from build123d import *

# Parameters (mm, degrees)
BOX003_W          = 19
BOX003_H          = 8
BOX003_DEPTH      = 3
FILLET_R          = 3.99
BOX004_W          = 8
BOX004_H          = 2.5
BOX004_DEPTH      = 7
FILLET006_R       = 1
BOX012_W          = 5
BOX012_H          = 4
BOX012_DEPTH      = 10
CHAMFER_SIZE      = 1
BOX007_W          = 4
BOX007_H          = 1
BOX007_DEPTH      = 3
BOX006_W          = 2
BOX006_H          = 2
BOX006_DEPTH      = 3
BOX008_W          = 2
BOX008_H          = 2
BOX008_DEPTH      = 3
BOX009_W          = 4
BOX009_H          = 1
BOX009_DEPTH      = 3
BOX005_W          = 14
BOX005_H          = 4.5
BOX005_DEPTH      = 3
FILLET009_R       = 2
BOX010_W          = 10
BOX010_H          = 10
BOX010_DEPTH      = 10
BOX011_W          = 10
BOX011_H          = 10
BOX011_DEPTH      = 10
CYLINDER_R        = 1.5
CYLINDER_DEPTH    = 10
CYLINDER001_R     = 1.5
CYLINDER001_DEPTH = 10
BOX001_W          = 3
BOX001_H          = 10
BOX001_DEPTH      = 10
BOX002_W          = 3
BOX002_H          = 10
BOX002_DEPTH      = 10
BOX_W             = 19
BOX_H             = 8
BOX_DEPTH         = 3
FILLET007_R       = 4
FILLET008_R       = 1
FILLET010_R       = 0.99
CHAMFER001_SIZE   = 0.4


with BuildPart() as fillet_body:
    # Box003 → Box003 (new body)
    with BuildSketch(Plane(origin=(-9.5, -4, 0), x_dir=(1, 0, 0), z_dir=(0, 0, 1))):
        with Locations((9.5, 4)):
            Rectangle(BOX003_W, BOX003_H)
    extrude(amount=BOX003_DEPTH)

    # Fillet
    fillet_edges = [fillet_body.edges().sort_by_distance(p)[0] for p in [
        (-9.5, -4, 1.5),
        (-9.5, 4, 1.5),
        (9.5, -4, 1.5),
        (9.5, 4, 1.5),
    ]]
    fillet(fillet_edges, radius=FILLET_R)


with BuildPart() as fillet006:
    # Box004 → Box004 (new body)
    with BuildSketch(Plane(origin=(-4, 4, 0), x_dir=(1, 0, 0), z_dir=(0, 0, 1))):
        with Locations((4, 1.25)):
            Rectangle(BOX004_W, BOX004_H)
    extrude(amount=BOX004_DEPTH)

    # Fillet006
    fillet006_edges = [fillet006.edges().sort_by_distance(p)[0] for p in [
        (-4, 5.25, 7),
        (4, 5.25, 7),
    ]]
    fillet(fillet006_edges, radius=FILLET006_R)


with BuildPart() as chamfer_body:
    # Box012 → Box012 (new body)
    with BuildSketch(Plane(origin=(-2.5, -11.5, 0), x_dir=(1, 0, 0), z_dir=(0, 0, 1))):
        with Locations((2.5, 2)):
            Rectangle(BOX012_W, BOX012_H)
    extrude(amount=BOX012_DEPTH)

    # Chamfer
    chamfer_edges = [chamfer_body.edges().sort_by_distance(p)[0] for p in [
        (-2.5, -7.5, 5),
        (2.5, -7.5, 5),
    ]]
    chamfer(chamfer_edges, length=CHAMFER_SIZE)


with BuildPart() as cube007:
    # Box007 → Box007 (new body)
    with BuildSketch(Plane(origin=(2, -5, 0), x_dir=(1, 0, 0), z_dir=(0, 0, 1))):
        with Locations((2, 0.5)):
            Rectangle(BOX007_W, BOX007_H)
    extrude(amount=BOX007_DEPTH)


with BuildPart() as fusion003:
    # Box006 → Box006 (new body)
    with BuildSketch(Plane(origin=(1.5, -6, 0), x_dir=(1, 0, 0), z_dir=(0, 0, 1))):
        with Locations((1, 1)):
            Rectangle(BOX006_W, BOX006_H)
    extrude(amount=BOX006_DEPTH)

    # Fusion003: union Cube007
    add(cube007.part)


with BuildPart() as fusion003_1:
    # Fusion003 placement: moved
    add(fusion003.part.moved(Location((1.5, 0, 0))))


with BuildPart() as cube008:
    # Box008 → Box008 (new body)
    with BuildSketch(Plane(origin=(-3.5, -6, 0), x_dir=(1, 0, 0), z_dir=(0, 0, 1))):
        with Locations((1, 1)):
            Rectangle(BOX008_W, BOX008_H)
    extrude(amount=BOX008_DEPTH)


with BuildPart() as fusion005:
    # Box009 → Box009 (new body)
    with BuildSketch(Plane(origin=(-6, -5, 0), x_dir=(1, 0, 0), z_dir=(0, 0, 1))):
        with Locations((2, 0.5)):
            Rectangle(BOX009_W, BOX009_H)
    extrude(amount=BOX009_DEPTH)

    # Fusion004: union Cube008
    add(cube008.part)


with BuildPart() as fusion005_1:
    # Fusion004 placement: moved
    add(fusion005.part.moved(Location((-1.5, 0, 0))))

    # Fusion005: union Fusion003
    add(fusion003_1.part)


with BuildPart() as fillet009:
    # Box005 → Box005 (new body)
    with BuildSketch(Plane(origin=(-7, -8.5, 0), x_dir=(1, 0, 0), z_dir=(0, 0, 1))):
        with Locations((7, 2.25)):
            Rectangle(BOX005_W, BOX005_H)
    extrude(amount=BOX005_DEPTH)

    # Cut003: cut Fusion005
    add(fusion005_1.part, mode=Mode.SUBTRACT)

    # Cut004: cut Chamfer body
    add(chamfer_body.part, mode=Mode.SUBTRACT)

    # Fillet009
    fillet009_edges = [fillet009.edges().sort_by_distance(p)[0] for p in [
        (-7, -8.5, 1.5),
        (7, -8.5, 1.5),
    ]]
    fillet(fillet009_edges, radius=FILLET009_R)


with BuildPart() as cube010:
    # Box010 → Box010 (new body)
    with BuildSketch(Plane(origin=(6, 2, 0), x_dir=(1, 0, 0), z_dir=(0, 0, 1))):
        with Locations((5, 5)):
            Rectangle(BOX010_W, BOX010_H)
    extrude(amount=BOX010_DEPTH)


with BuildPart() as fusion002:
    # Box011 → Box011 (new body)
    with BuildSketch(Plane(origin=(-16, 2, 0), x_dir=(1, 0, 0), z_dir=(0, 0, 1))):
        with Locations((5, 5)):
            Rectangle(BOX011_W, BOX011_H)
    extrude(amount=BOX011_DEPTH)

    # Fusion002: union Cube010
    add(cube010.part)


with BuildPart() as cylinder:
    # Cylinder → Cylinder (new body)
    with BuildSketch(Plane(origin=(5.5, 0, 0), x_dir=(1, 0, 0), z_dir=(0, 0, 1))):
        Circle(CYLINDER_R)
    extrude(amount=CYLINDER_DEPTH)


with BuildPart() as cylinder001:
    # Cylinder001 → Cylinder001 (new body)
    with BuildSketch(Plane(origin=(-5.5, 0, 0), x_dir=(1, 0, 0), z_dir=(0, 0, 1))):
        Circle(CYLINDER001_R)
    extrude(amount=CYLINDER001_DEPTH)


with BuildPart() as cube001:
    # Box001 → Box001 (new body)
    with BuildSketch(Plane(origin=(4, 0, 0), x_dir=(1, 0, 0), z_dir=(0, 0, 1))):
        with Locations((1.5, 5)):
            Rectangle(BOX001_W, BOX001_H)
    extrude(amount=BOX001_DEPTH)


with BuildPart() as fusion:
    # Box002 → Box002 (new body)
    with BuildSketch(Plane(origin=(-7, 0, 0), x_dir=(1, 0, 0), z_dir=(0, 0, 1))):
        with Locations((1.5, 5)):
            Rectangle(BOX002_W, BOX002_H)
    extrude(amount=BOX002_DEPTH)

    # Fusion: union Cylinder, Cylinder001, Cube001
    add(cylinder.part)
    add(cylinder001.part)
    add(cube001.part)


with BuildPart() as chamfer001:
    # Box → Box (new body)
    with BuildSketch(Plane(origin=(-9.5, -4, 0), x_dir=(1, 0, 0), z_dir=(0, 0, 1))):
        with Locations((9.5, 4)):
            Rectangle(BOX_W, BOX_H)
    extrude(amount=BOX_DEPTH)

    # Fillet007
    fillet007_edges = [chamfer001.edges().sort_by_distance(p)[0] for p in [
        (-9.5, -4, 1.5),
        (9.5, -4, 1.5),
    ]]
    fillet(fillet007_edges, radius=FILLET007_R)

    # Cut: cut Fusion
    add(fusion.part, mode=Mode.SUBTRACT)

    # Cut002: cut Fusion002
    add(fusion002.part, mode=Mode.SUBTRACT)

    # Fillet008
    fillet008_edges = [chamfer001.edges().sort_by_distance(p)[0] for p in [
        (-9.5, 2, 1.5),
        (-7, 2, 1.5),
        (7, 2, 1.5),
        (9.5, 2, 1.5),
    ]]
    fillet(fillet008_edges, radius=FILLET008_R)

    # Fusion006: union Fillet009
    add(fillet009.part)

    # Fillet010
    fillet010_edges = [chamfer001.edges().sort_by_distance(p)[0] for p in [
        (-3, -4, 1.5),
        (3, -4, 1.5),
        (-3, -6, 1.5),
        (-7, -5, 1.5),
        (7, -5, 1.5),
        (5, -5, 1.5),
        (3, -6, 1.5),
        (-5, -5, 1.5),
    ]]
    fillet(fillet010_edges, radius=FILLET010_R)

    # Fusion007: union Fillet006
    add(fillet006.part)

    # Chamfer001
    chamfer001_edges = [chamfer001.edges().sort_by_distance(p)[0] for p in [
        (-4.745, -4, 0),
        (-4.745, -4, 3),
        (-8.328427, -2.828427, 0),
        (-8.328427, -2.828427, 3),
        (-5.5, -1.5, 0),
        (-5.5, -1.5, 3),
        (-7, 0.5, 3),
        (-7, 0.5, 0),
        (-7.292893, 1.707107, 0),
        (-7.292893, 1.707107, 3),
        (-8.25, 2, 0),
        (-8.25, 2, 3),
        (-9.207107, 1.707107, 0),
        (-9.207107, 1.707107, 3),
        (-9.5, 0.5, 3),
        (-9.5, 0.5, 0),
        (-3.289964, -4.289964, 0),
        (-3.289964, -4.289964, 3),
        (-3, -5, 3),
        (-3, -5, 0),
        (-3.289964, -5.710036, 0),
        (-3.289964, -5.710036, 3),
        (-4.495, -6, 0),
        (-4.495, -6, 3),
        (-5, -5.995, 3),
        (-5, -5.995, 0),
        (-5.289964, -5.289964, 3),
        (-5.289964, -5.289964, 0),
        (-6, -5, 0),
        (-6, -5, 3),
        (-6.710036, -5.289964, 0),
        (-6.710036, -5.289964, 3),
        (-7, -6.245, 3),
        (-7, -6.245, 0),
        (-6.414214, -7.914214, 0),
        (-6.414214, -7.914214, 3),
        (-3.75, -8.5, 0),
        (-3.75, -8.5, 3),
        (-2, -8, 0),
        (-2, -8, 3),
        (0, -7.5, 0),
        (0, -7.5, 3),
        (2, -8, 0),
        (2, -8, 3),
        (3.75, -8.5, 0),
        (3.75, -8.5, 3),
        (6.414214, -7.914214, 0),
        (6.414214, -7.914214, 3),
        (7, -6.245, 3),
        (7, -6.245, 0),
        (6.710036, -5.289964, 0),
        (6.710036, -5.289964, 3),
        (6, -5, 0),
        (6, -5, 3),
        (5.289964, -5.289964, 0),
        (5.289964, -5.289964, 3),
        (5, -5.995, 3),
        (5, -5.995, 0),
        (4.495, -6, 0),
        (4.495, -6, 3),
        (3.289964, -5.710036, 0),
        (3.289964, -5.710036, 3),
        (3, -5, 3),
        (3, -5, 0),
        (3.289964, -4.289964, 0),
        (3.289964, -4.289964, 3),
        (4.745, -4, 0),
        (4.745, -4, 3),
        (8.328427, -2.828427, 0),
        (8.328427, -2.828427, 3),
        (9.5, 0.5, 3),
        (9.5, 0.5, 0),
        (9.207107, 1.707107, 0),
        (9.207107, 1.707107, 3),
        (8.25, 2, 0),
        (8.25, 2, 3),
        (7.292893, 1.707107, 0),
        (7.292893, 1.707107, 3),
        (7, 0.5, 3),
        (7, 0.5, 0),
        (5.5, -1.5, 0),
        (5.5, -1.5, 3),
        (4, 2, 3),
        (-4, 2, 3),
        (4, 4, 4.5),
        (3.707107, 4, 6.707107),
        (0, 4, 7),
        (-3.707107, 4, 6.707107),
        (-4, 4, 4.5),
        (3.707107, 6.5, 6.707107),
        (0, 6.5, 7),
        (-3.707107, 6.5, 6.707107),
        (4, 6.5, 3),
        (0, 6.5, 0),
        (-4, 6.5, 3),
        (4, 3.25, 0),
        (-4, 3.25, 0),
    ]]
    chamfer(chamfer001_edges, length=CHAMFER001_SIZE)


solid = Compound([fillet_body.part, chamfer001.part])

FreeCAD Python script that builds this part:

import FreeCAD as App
import Part
import Sketcher

V = App.Vector


def edges_at(feature, points):
    """Names of the edges that pass closest to the given points."""
    edges = feature.Shape.Edges
    near = lambda p: min(range(len(edges)), key=lambda i: edges[i].distToShape(Part.Vertex(*p))[0])
    return sorted({f"Edge{near(p) + 1}" for p in points})

doc = App.newDocument("Part")
body = doc.addObject("PartDesign::Body", "Body")

sketch1 = body.newObject("Sketcher::SketchObject", "Sketch")
sketch1.AttachmentSupport = (doc.getObject("XY_Plane"), [""])
sketch1.MapMode = "FlatFace"
sketch1.addGeometry([
    Part.LineSegment(V(-10, 4, 0), V(-10, -4, 0)),
    Part.LineSegment(V(-10, -4, 0), V(10, -4, 0)),
    Part.LineSegment(V(10, -4, 0), V(10, 4, 0)),
    Part.LineSegment(V(10, 4, 0), V(-10, 4, 0)),
], False)
sketch1.addConstraint([
    Sketcher.Constraint("Coincident", 0, 2, 1, 1),
    Sketcher.Constraint("Coincident", 1, 2, 2, 1),
    Sketcher.Constraint("Coincident", 2, 2, 3, 1),
    Sketcher.Constraint("Coincident", 3, 2, 0, 1),
    Sketcher.Constraint("Vertical", 0),
    Sketcher.Constraint("Horizontal", 1),
    Sketcher.Constraint("Vertical", 2),
    Sketcher.Constraint("Horizontal", 3),
    Sketcher.Constraint("Symmetric", 0, 2, 2, 2, -1, 1),
    Sketcher.Constraint("DistanceX", 1, 1, 1, 2, 19.0),
    Sketcher.Constraint("DistanceY", 0, 2, 0, 1, 8.0),
])
pad1 = body.newObject("PartDesign::Pad", "Pad")
pad1.Profile = sketch1
pad1.Length = 3
doc.recompute()

fillet = body.newObject("PartDesign::Fillet", "Fillet")
fillet.Base = (pad1, edges_at(pad1, [
    (-9.5, -4, 1.5),
    (-9.5, 4, 1.5),
    (9.5, -4, 1.5),
    (9.5, 4, 1.5),
]))
fillet.Radius = 3.99
body2 = doc.addObject("PartDesign::Body", "Body001")

sketch2 = body2.newObject("Sketcher::SketchObject", "Sketch001")
sketch2.AttachmentSupport = (doc.getObject("XY_Plane001"), [""])
sketch2.MapMode = "FlatFace"
sketch2.addGeometry([
    Part.LineSegment(V(-4, 6.5, 0), V(-4, 4, 0)),
    Part.LineSegment(V(-4, 4, 0), V(4, 4, 0)),
    Part.LineSegment(V(4, 4, 0), V(4, 6.5, 0)),
    Part.LineSegment(V(4, 6.5, 0), V(-4, 6.5, 0)),
], False)
sketch2.addConstraint([
    Sketcher.Constraint("Coincident", 0, 2, 1, 1),
    Sketcher.Constraint("Coincident", 1, 2, 2, 1),
    Sketcher.Constraint("Coincident", 2, 2, 3, 1),
    Sketcher.Constraint("Coincident", 3, 2, 0, 1),
    Sketcher.Constraint("Vertical", 0),
    Sketcher.Constraint("Horizontal", 1),
    Sketcher.Constraint("Vertical", 2),
    Sketcher.Constraint("Horizontal", 3),
    Sketcher.Constraint("DistanceX", 1, 1, 1, 2, 8.0),
    Sketcher.Constraint("DistanceY", 0, 2, 0, 1, 2.5),
    Sketcher.Constraint("DistanceX", 0, 2, -1, 1, 4.0),
    Sketcher.Constraint("DistanceY", -1, 1, 0, 2, 4.0),
])
pad2 = body2.newObject("PartDesign::Pad", "Pad001")
pad2.Profile = sketch2
pad2.Length = 7
doc.recompute()

fillet2 = body2.newObject("PartDesign::Fillet", "Fillet001")
fillet2.Base = (pad2, edges_at(pad2, [(-4, 5.25, 7), (4, 5.25, 7)]))
fillet2.Radius = 1
body3 = doc.addObject("PartDesign::Body", "Body002")

sketch3 = body3.newObject("Sketcher::SketchObject", "Sketch002")
sketch3.AttachmentSupport = (doc.getObject("XY_Plane002"), [""])
sketch3.MapMode = "FlatFace"
sketch3.addGeometry([
    Part.LineSegment(V(-2.5, -7.5, 0), V(-2.5, -11.5, 0)),
    Part.LineSegment(V(-2.5, -11.5, 0), V(2.5, -11.5, 0)),
    Part.LineSegment(V(2.5, -11.5, 0), V(2.5, -7.5, 0)),
    Part.LineSegment(V(2.5, -7.5, 0), V(-2.5, -7.5, 0)),
], False)
sketch3.addConstraint([
    Sketcher.Constraint("Coincident", 0, 2, 1, 1),
    Sketcher.Constraint("Coincident", 1, 2, 2, 1),
    Sketcher.Constraint("Coincident", 2, 2, 3, 1),
    Sketcher.Constraint("Coincident", 3, 2, 0, 1),
    Sketcher.Constraint("Vertical", 0),
    Sketcher.Constraint("Horizontal", 1),
    Sketcher.Constraint("Vertical", 2),
    Sketcher.Constraint("Horizontal", 3),
    Sketcher.Constraint("DistanceX", 1, 1, 1, 2, 5.0),
    Sketcher.Constraint("DistanceY", 0, 2, 0, 1, 4.0),
    Sketcher.Constraint("DistanceX", 0, 2, -1, 1, 2.5),
    Sketcher.Constraint("DistanceY", 0, 2, -1, 1, 11.5),
])
pad3 = body3.newObject("PartDesign::Pad", "Pad002")
pad3.Profile = sketch3
pad3.Length = 10
doc.recompute()

chamfer = body3.newObject("PartDesign::Chamfer", "Chamfer")
chamfer.Base = (pad3, edges_at(pad3, [(-2.5, -7.5, 5), (2.5, -7.5, 5)]))
chamfer.Size = 1
body4 = doc.addObject("PartDesign::Body", "Body003")

sketch4 = body4.newObject("Sketcher::SketchObject", "Sketch003")
sketch4.AttachmentSupport = (doc.getObject("XY_Plane003"), [""])
sketch4.MapMode = "FlatFace"
sketch4.addGeometry([
    Part.LineSegment(V(2, -4, 0), V(2, -5, 0)),
    Part.LineSegment(V(2, -5, 0), V(6, -5, 0)),
    Part.LineSegment(V(6, -5, 0), V(6, -4, 0)),
    Part.LineSegment(V(6, -4, 0), V(2, -4, 0)),
], False)
sketch4.addConstraint([
    Sketcher.Constraint("Coincident", 0, 2, 1, 1),
    Sketcher.Constraint("Coincident", 1, 2, 2, 1),
    Sketcher.Constraint("Coincident", 2, 2, 3, 1),
    Sketcher.Constraint("Coincident", 3, 2, 0, 1),
    Sketcher.Constraint("Vertical", 0),
    Sketcher.Constraint("Horizontal", 1),
    Sketcher.Constraint("Vertical", 2),
    Sketcher.Constraint("Horizontal", 3),
    Sketcher.Constraint("DistanceX", 1, 1, 1, 2, 4.0),
    Sketcher.Constraint("DistanceY", 0, 2, 0, 1, 1.0),
    Sketcher.Constraint("DistanceX", -1, 1, 0, 2, 2.0),
    Sketcher.Constraint("DistanceY", 0, 2, -1, 1, 5.0),
])
pad4 = body4.newObject("PartDesign::Pad", "Pad003")
pad4.Profile = sketch4
pad4.Length = 3
body5 = doc.addObject("PartDesign::Body", "Body004")

sketch5 = body5.newObject("Sketcher::SketchObject", "Sketch004")
sketch5.AttachmentSupport = (doc.getObject("XY_Plane004"), [""])
sketch5.MapMode = "FlatFace"
sketch5.addGeometry([
    Part.LineSegment(V(1.5, -4, 0), V(1.5, -6, 0)),
    Part.LineSegment(V(1.5, -6, 0), V(3.5, -6, 0)),
    Part.LineSegment(V(3.5, -6, 0), V(3.5, -4, 0)),
    Part.LineSegment(V(3.5, -4, 0), V(1.5, -4, 0)),
], False)
sketch5.addConstraint([
    Sketcher.Constraint("Coincident", 0, 2, 1, 1),
    Sketcher.Constraint("Coincident", 1, 2, 2, 1),
    Sketcher.Constraint("Coincident", 2, 2, 3, 1),
    Sketcher.Constraint("Coincident", 3, 2, 0, 1),
    Sketcher.Constraint("Vertical", 0),
    Sketcher.Constraint("Horizontal", 1),
    Sketcher.Constraint("Vertical", 2),
    Sketcher.Constraint("Horizontal", 3),
    Sketcher.Constraint("Equal", 3, 0),
    Sketcher.Constraint("DistanceX", 1, 1, 1, 2, 2.0),
    Sketcher.Constraint("DistanceY", 0, 2, -1, 1, 6.0),
    Sketcher.Constraint("DistanceX", -1, 1, 0, 2, 1.5),
])
pad5 = body5.newObject("PartDesign::Pad", "Pad004")
pad5.Profile = sketch5
pad5.Length = 3
doc.recompute()

boolean = body5.newObject("PartDesign::Boolean", "Boolean")
boolean.Type = "Fuse"
boolean.addObjects([body4])
body6 = doc.addObject("PartDesign::Body", "Body005")
doc.recompute()

body5.Placement = App.Placement(V(1.5, 0, 0), App.Rotation(V(0, 0, 1), 0))
boolean2 = body6.newObject("PartDesign::Boolean", "Boolean001")
boolean2.Type = "Fuse"
boolean2.addObjects([body5])
body7 = doc.addObject("PartDesign::Body", "Body006")

sketch6 = body7.newObject("Sketcher::SketchObject", "Sketch005")
sketch6.AttachmentSupport = (doc.getObject("XY_Plane006"), [""])
sketch6.MapMode = "FlatFace"
sketch6.addGeometry([
    Part.LineSegment(V(-3.5, -4, 0), V(-3.5, -6, 0)),
    Part.LineSegment(V(-3.5, -6, 0), V(-1.5, -6, 0)),
    Part.LineSegment(V(-1.5, -6, 0), V(-1.5, -4, 0)),
    Part.LineSegment(V(-1.5, -4, 0), V(-3.5, -4, 0)),
], False)
sketch6.addConstraint([
    Sketcher.Constraint("Coincident", 0, 2, 1, 1),
    Sketcher.Constraint("Coincident", 1, 2, 2, 1),
    Sketcher.Constraint("Coincident", 2, 2, 3, 1),
    Sketcher.Constraint("Coincident", 3, 2, 0, 1),
    Sketcher.Constraint("Vertical", 0),
    Sketcher.Constraint("Horizontal", 1),
    Sketcher.Constraint("Vertical", 2),
    Sketcher.Constraint("Horizontal", 3),
    Sketcher.Constraint("Equal", 3, 0),
    Sketcher.Constraint("DistanceX", 1, 1, 1, 2, 2.0),
    Sketcher.Constraint("DistanceY", 0, 2, -1, 1, 6.0),
    Sketcher.Constraint("DistanceX", 0, 2, -1, 1, 3.5),
])
pad6 = body7.newObject("PartDesign::Pad", "Pad005")
pad6.Profile = sketch6
pad6.Length = 3
body8 = doc.addObject("PartDesign::Body", "Body007")

sketch7 = body8.newObject("Sketcher::SketchObject", "Sketch006")
sketch7.AttachmentSupport = (doc.getObject("XY_Plane007"), [""])
sketch7.MapMode = "FlatFace"
sketch7.addGeometry([
    Part.LineSegment(V(-6, -4, 0), V(-6, -5, 0)),
    Part.LineSegment(V(-6, -5, 0), V(-2, -5, 0)),
    Part.LineSegment(V(-2, -5, 0), V(-2, -4, 0)),
    Part.LineSegment(V(-2, -4, 0), V(-6, -4, 0)),
], False)
sketch7.addConstraint([
    Sketcher.Constraint("Coincident", 0, 2, 1, 1),
    Sketcher.Constraint("Coincident", 1, 2, 2, 1),
    Sketcher.Constraint("Coincident", 2, 2, 3, 1),
    Sketcher.Constraint("Coincident", 3, 2, 0, 1),
    Sketcher.Constraint("Vertical", 0),
    Sketcher.Constraint("Horizontal", 1),
    Sketcher.Constraint("Vertical", 2),
    Sketcher.Constraint("Horizontal", 3),
    Sketcher.Constraint("DistanceX", 1, 1, 1, 2, 4.0),
    Sketcher.Constraint("DistanceY", 0, 2, 0, 1, 1.0),
    Sketcher.Constraint("DistanceX", 0, 2, -1, 1, 6.0),
    Sketcher.Constraint("DistanceY", 0, 2, -1, 1, 5.0),
])
pad7 = body8.newObject("PartDesign::Pad", "Pad006")
pad7.Profile = sketch7
pad7.Length = 3
doc.recompute()

boolean3 = body8.newObject("PartDesign::Boolean", "Boolean002")
boolean3.Type = "Fuse"
boolean3.addObjects([body7])
body9 = doc.addObject("PartDesign::Body", "Body008")
body9.AllowCompound = True
doc.recompute()

body8.Placement = App.Placement(V(-1.5, 0, 0), App.Rotation(V(0, 0, 1), 0))
boolean4 = body9.newObject("PartDesign::Boolean", "Boolean003")
boolean4.Type = "Fuse"
boolean4.addObjects([body8])
doc.recompute()

boolean5 = body9.newObject("PartDesign::Boolean", "Boolean004")
boolean5.Type = "Fuse"
boolean5.addObjects([body6])
body10 = doc.addObject("PartDesign::Body", "Body009")

sketch8 = body10.newObject("Sketcher::SketchObject", "Sketch007")
sketch8.AttachmentSupport = (doc.getObject("XY_Plane009"), [""])
sketch8.MapMode = "FlatFace"
sketch8.addGeometry([
    Part.LineSegment(V(-7, -4, 0), V(-7, -8.5, 0)),
    Part.LineSegment(V(-7, -8.5, 0), V(7, -8.5, 0)),
    Part.LineSegment(V(7, -8.5, 0), V(7, -4, 0)),
    Part.LineSegment(V(7, -4, 0), V(-7, -4, 0)),
], False)
sketch8.addConstraint([
    Sketcher.Constraint("Coincident", 0, 2, 1, 1),
    Sketcher.Constraint("Coincident", 1, 2, 2, 1),
    Sketcher.Constraint("Coincident", 2, 2, 3, 1),
    Sketcher.Constraint("Coincident", 3, 2, 0, 1),
    Sketcher.Constraint("Vertical", 0),
    Sketcher.Constraint("Horizontal", 1),
    Sketcher.Constraint("Vertical", 2),
    Sketcher.Constraint("Horizontal", 3),
    Sketcher.Constraint("DistanceX", 1, 1, 1, 2, 14.0),
    Sketcher.Constraint("DistanceY", 0, 2, 0, 1, 4.5),
    Sketcher.Constraint("DistanceX", 0, 2, -1, 1, 7.0),
    Sketcher.Constraint("DistanceY", 2, 2, -1, 1, 4.0),
])
pad8 = body10.newObject("PartDesign::Pad", "Pad007")
pad8.Profile = sketch8
pad8.Length = 3
doc.recompute()

boolean6 = body10.newObject("PartDesign::Boolean", "Boolean005")
boolean6.Type = "Cut"
boolean6.addObjects([body9])
doc.recompute()

boolean7 = body10.newObject("PartDesign::Boolean", "Boolean006")
boolean7.Type = "Cut"
boolean7.addObjects([body3])
doc.recompute()

fillet3 = body10.newObject("PartDesign::Fillet", "Fillet002")
fillet3.Base = (boolean7, edges_at(boolean7, [(-7, -8.5, 1.5), (7, -8.5, 1.5)]))
fillet3.Radius = 2
body11 = doc.addObject("PartDesign::Body", "Body010")

sketch9 = body11.newObject("Sketcher::SketchObject", "Sketch008")
sketch9.AttachmentSupport = (doc.getObject("XY_Plane010"), [""])
sketch9.MapMode = "FlatFace"
sketch9.addGeometry([
    Part.LineSegment(V(6, 12, 0), V(6, 2, 0)),
    Part.LineSegment(V(6, 2, 0), V(16, 2, 0)),
    Part.LineSegment(V(16, 2, 0), V(16, 12, 0)),
    Part.LineSegment(V(16, 12, 0), V(6, 12, 0)),
], False)
sketch9.addConstraint([
    Sketcher.Constraint("Coincident", 0, 2, 1, 1),
    Sketcher.Constraint("Coincident", 1, 2, 2, 1),
    Sketcher.Constraint("Coincident", 2, 2, 3, 1),
    Sketcher.Constraint("Coincident", 3, 2, 0, 1),
    Sketcher.Constraint("Vertical", 0),
    Sketcher.Constraint("Horizontal", 1),
    Sketcher.Constraint("Vertical", 2),
    Sketcher.Constraint("Horizontal", 3),
    Sketcher.Constraint("Equal", 3, 0),
    Sketcher.Constraint("DistanceX", 1, 1, 1, 2, 10.0),
    Sketcher.Constraint("DistanceX", -1, 1, 0, 2, 6.0),
    Sketcher.Constraint("DistanceY", -1, 1, 0, 2, 2.0),
])
pad9 = body11.newObject("PartDesign::Pad", "Pad008")
pad9.Profile = sketch9
pad9.Length = 10
body12 = doc.addObject("PartDesign::Body", "Body011")
body12.AllowCompound = True

sketch10 = body12.newObject("Sketcher::SketchObject", "Sketch009")
sketch10.AttachmentSupport = (doc.getObject("XY_Plane011"), [""])
sketch10.MapMode = "FlatFace"
sketch10.addGeometry([
    Part.LineSegment(V(-16, 12, 0), V(-16, 2, 0)),
    Part.LineSegment(V(-16, 2, 0), V(-6, 2, 0)),
    Part.LineSegment(V(-6, 2, 0), V(-6, 12, 0)),
    Part.LineSegment(V(-6, 12, 0), V(-16, 12, 0)),
], False)
sketch10.addConstraint([
    Sketcher.Constraint("Coincident", 0, 2, 1, 1),
    Sketcher.Constraint("Coincident", 1, 2, 2, 1),
    Sketcher.Constraint("Coincident", 2, 2, 3, 1),
    Sketcher.Constraint("Coincident", 3, 2, 0, 1),
    Sketcher.Constraint("Vertical", 0),
    Sketcher.Constraint("Horizontal", 1),
    Sketcher.Constraint("Vertical", 2),
    Sketcher.Constraint("Horizontal", 3),
    Sketcher.Constraint("Equal", 3, 0),
    Sketcher.Constraint("DistanceX", 1, 1, 1, 2, 10.0),
    Sketcher.Constraint("DistanceX", 0, 2, -1, 1, 16.0),
    Sketcher.Constraint("DistanceY", -1, 1, 0, 2, 2.0),
])
pad10 = body12.newObject("PartDesign::Pad", "Pad009")
pad10.Profile = sketch10
pad10.Length = 10
doc.recompute()

boolean8 = body12.newObject("PartDesign::Boolean", "Boolean007")
boolean8.Type = "Fuse"
boolean8.addObjects([body11])
body13 = doc.addObject("PartDesign::Body", "Body012")

sketch11 = body13.newObject("Sketcher::SketchObject", "Sketch010")
sketch11.AttachmentSupport = (doc.getObject("XY_Plane012"), [""])
sketch11.MapMode = "FlatFace"
sketch11.addGeometry(Part.Circle(V(5.5, 0, 0), V(0, 0, 1), 1.5), False)
sketch11.addConstraint([
    Sketcher.Constraint("PointOnObject", 0, 3, -1),
    Sketcher.Constraint("Diameter", 0, 3.0),
    Sketcher.Constraint("DistanceX", -1, 1, 0, 3, 5.5),
])
pad11 = body13.newObject("PartDesign::Pad", "Pad010")
pad11.Profile = sketch11
pad11.Length = 10
body14 = doc.addObject("PartDesign::Body", "Body013")

sketch12 = body14.newObject("Sketcher::SketchObject", "Sketch011")
sketch12.AttachmentSupport = (doc.getObject("XY_Plane013"), [""])
sketch12.MapMode = "FlatFace"
sketch12.addGeometry(Part.Circle(V(-5.5, 0, 0), V(0, 0, 1), 1.5), False)
sketch12.addConstraint([
    Sketcher.Constraint("PointOnObject", 0, 3, -1),
    Sketcher.Constraint("Diameter", 0, 3.0),
    Sketcher.Constraint("DistanceX", 0, 3, -1, 1, 5.5),
])
pad12 = body14.newObject("PartDesign::Pad", "Pad011")
pad12.Profile = sketch12
pad12.Length = 10
body15 = doc.addObject("PartDesign::Body", "Body014")

sketch13 = body15.newObject("Sketcher::SketchObject", "Sketch012")
sketch13.AttachmentSupport = (doc.getObject("XY_Plane014"), [""])
sketch13.MapMode = "FlatFace"
sketch13.addGeometry([
    Part.LineSegment(V(4, 10, 0), V(4, 0, 0)),
    Part.LineSegment(V(4, 0, 0), V(7, 0, 0)),
    Part.LineSegment(V(7, 0, 0), V(7, 10, 0)),
    Part.LineSegment(V(7, 10, 0), V(4, 10, 0)),
], False)
sketch13.addConstraint([
    Sketcher.Constraint("Coincident", 0, 2, 1, 1),
    Sketcher.Constraint("Coincident", 1, 2, 2, 1),
    Sketcher.Constraint("Coincident", 2, 2, 3, 1),
    Sketcher.Constraint("Coincident", 3, 2, 0, 1),
    Sketcher.Constraint("Vertical", 0),
    Sketcher.Constraint("Horizontal", 1),
    Sketcher.Constraint("Vertical", 2),
    Sketcher.Constraint("Horizontal", 3),
    Sketcher.Constraint("PointOnObject", 0, 2, -1),
    Sketcher.Constraint("DistanceX", 1, 1, 1, 2, 3.0),
    Sketcher.Constraint("DistanceY", 0, 2, 0, 1, 10.0),
    Sketcher.Constraint("DistanceX", -1, 1, 0, 2, 4.0),
])
pad13 = body15.newObject("PartDesign::Pad", "Pad012")
pad13.Profile = sketch13
pad13.Length = 10
body16 = doc.addObject("PartDesign::Body", "Body015")
body16.AllowCompound = True

sketch14 = body16.newObject("Sketcher::SketchObject", "Sketch013")
sketch14.AttachmentSupport = (doc.getObject("XY_Plane015"), [""])
sketch14.MapMode = "FlatFace"
sketch14.addGeometry([
    Part.LineSegment(V(-7, 10, 0), V(-7, 0, 0)),
    Part.LineSegment(V(-7, 0, 0), V(-4, 0, 0)),
    Part.LineSegment(V(-4, 0, 0), V(-4, 10, 0)),
    Part.LineSegment(V(-4, 10, 0), V(-7, 10, 0)),
], False)
sketch14.addConstraint([
    Sketcher.Constraint("Coincident", 0, 2, 1, 1),
    Sketcher.Constraint("Coincident", 1, 2, 2, 1),
    Sketcher.Constraint("Coincident", 2, 2, 3, 1),
    Sketcher.Constraint("Coincident", 3, 2, 0, 1),
    Sketcher.Constraint("Vertical", 0),
    Sketcher.Constraint("Horizontal", 1),
    Sketcher.Constraint("Vertical", 2),
    Sketcher.Constraint("Horizontal", 3),
    Sketcher.Constraint("PointOnObject", 0, 2, -1),
    Sketcher.Constraint("DistanceX", 1, 1, 1, 2, 3.0),
    Sketcher.Constraint("DistanceY", 0, 2, 0, 1, 10.0),
    Sketcher.Constraint("DistanceX", 0, 2, -1, 1, 7.0),
])
pad14 = body16.newObject("PartDesign::Pad", "Pad013")
pad14.Profile = sketch14
pad14.Length = 10
doc.recompute()

boolean9 = body16.newObject("PartDesign::Boolean", "Boolean008")
boolean9.Type = "Fuse"
boolean9.addObjects([body13])
doc.recompute()

boolean10 = body16.newObject("PartDesign::Boolean", "Boolean009")
boolean10.Type = "Fuse"
boolean10.addObjects([body14])
doc.recompute()

boolean11 = body16.newObject("PartDesign::Boolean", "Boolean010")
boolean11.Type = "Fuse"
boolean11.addObjects([body15])
body17 = doc.addObject("PartDesign::Body", "Body016")

sketch15 = body17.newObject("Sketcher::SketchObject", "Sketch014")
sketch15.AttachmentSupport = (doc.getObject("XY_Plane016"), [""])
sketch15.MapMode = "FlatFace"
sketch15.addGeometry([
    Part.LineSegment(V(-10, 4, 0), V(-10, -4, 0)),
    Part.LineSegment(V(-10, -4, 0), V(10, -4, 0)),
    Part.LineSegment(V(10, -4, 0), V(10, 4, 0)),
    Part.LineSegment(V(10, 4, 0), V(-10, 4, 0)),
], False)
sketch15.addConstraint([
    Sketcher.Constraint("Coincident", 0, 2, 1, 1),
    Sketcher.Constraint("Coincident", 1, 2, 2, 1),
    Sketcher.Constraint("Coincident", 2, 2, 3, 1),
    Sketcher.Constraint("Coincident", 3, 2, 0, 1),
    Sketcher.Constraint("Vertical", 0),
    Sketcher.Constraint("Horizontal", 1),
    Sketcher.Constraint("Vertical", 2),
    Sketcher.Constraint("Horizontal", 3),
    Sketcher.Constraint("Symmetric", 0, 2, 2, 2, -1, 1),
    Sketcher.Constraint("DistanceX", 1, 1, 1, 2, 19.0),
    Sketcher.Constraint("DistanceY", 0, 2, 0, 1, 8.0),
])
pad15 = body17.newObject("PartDesign::Pad", "Pad014")
pad15.Profile = sketch15
pad15.Length = 3
doc.recompute()

fillet4 = body17.newObject("PartDesign::Fillet", "Fillet003")
fillet4.Base = (pad15, edges_at(pad15, [(-9.5, -4, 1.5), (9.5, -4, 1.5)]))
fillet4.Radius = 4
doc.recompute()

boolean12 = body17.newObject("PartDesign::Boolean", "Boolean011")
boolean12.Type = "Cut"
boolean12.addObjects([body16])
doc.recompute()

boolean13 = body17.newObject("PartDesign::Boolean", "Boolean012")
boolean13.Type = "Cut"
boolean13.addObjects([body12])
doc.recompute()

fillet5 = body17.newObject("PartDesign::Fillet", "Fillet004")
fillet5.Base = (boolean13, edges_at(boolean13, [
    (-9.5, 2, 1.5),
    (-7, 2, 1.5),
    (7, 2, 1.5),
    (9.5, 2, 1.5),
]))
fillet5.Radius = 1
doc.recompute()

boolean14 = body17.newObject("PartDesign::Boolean", "Boolean013")
boolean14.Type = "Fuse"
boolean14.addObjects([body10])
doc.recompute()

fillet6 = body17.newObject("PartDesign::Fillet", "Fillet005")
fillet6.Base = (boolean14, edges_at(boolean14, [
    (-3, -4, 1.5),
    (3, -4, 1.5),
    (-3, -6, 1.5),
    (-7, -5, 1.5),
    (7, -5, 1.5),
    (5, -5, 1.5),
    (3, -6, 1.5),
    (-5, -5, 1.5),
]))
fillet6.Radius = 0.99
doc.recompute()

boolean15 = body17.newObject("PartDesign::Boolean", "Boolean014")
boolean15.Type = "Fuse"
boolean15.addObjects([body2])
doc.recompute()

chamfer2 = body17.newObject("PartDesign::Chamfer", "Chamfer001")
chamfer2.Base = (boolean15, edges_at(boolean15, [
    (-4.745, -4, 0),
    (-4.745, -4, 3),
    (-8.328, -2.828, 0),
    (-8.328, -2.828, 3),
    (-5.5, -1.5, 0),
    (-5.5, -1.5, 3),
    (-7, 0.5, 3),
    (-7, 0.5, 0),
    (-7.293, 1.707, 0),
    (-7.293, 1.707, 3),
    (-8.25, 2, 0),
    (-8.25, 2, 3),
    (-9.207, 1.707, 0),
    (-9.207, 1.707, 3),
    (-9.5, 0.5, 3),
    (-9.5, 0.5, 0),
    (-3.29, -4.29, 0),
    (-3.29, -4.29, 3),
    (-3, -5, 3),
    (-3, -5, 0),
    (-3.29, -5.71, 0),
    (-3.29, -5.71, 3),
    (-4.495, -6, 0),
    (-4.495, -6, 3),
    (-5, -5.995, 3),
    (-5, -5.995, 0),
    (-5.29, -5.29, 3),
    (-5.29, -5.29, 0),
    (-6, -5, 0),
    (-6, -5, 3),
    (-6.71, -5.29, 0),
    (-6.71, -5.29, 3),
    (-7, -6.245, 3),
    (-7, -6.245, 0),
    (-6.414, -7.914, 0),
    (-6.414, -7.914, 3),
    (-3.75, -8.5, 0),
    (-3.75, -8.5, 3),
    (-2, -8, 0),
    (-2, -8, 3),
    (0, -7.5, 0),
    (0, -7.5, 3),
    (2, -8, 0),
    (2, -8, 3),
    (3.75, -8.5, 0),
    (3.75, -8.5, 3),
    (6.414, -7.914, 0),
    (6.414, -7.914, 3),
    (7, -6.245, 3),
    (7, -6.245, 0),
    (6.71, -5.29, 0),
    (6.71, -5.29, 3),
    (6, -5, 0),
    (6, -5, 3),
    (5.29, -5.29, 0),
    (5.29, -5.29, 3),
    (5, -5.995, 3),
    (5, -5.995, 0),
    (4.495, -6, 0),
    (4.495, -6, 3),
    (3.29, -5.71, 0),
    (3.29, -5.71, 3),
    (3, -5, 3),
    (3, -5, 0),
    (3.29, -4.29, 0),
    (3.29, -4.29, 3),
    (4.745, -4, 0),
    (4.745, -4, 3),
    (8.328, -2.828, 0),
    (8.328, -2.828, 3),
    (9.5, 0.5, 3),
    (9.5, 0.5, 0),
    (9.207, 1.707, 0),
    (9.207, 1.707, 3),
    (8.25, 2, 0),
    (8.25, 2, 3),
    (7.293, 1.707, 0),
    (7.293, 1.707, 3),
    (7, 0.5, 3),
    (7, 0.5, 0),
    (5.5, -1.5, 0),
    (5.5, -1.5, 3),
    (4, 2, 3),
    (-4, 2, 3),
    (4, 4, 4.5),
    (3.707, 4, 6.707),
    (0, 4, 7),
    (-3.707, 4, 6.707),
    (-4, 4, 4.5),
    (3.707, 6.5, 6.707),
    (0, 6.5, 7),
    (-3.707, 6.5, 6.707),
    (4, 6.5, 3),
    (0, 6.5, 0),
    (-4, 6.5, 3),
    (4, 3.25, 0),
    (-4, 3.25, 0),
]))
chamfer2.Size = 0.4

doc.recompute()
